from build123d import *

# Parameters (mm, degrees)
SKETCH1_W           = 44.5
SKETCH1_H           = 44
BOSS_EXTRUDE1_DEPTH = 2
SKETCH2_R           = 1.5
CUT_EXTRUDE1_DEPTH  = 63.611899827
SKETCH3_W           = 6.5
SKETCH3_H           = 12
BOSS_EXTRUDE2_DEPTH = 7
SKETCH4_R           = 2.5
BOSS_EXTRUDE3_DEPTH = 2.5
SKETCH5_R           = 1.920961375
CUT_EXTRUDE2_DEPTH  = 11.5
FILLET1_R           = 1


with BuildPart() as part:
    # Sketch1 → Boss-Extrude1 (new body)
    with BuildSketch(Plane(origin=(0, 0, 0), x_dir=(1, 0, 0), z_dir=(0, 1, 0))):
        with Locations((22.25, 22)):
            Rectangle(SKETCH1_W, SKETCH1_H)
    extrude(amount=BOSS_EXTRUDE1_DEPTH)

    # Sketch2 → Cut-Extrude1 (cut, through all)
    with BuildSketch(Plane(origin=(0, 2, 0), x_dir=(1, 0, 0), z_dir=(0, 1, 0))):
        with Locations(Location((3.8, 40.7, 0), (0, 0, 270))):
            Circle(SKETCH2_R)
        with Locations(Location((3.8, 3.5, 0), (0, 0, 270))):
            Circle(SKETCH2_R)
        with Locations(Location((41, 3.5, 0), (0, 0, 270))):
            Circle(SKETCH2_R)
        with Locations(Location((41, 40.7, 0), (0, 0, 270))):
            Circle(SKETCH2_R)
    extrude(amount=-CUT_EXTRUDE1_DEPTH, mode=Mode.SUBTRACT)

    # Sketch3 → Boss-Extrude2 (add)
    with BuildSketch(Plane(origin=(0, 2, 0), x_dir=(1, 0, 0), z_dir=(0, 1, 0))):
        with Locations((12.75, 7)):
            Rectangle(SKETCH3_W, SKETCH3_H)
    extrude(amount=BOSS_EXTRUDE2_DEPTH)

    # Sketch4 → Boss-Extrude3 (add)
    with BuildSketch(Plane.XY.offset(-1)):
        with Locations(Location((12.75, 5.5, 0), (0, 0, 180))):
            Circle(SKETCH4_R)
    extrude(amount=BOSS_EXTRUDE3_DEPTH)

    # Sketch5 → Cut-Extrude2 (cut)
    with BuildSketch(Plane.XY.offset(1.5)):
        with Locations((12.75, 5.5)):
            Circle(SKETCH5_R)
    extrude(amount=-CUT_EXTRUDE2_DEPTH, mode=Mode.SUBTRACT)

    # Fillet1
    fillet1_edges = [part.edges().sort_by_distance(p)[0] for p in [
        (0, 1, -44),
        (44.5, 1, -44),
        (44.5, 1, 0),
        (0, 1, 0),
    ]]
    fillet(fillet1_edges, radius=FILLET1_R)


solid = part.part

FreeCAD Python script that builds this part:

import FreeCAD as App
import Part
import Sketcher
Q = App.Units.Quantity


def edges_at(feature, points):
    """Names of the edges that pass closest to the given points."""
    edges = feature.Shape.Edges
    near = lambda p: min(range(len(edges)), key=lambda i: edges[i].distToShape(Part.Vertex(*p))[0])
    return sorted({f"Edge{near(p) + 1}" for p in points})


def add_polygon(sketch, points):
    """Adds a closed chain of lines whose ends are joined by coincident constraints."""
    first, n = sketch.GeometryCount, len(points)
    for a, b in zip(points, points[1:] + points[:1]):
        sketch.addGeometry(Part.LineSegment(App.Vector(*a, 0), App.Vector(*b, 0)), False)
    for i in range(n):
        sketch.addConstraint(Sketcher.Constraint("Coincident", first + i, 2, first + (i + 1) % n, 1))

doc = App.newDocument("Part")
params = doc.addObject("Spreadsheet::Sheet", "Params")
for row, (alias, value) in enumerate([
    ("sketch1_height", "44 mm"),
    ("sketch1_width", "44.5 mm"),
    ("pad1_length", "2 mm"),
    ("sketch2_diameter", "3 mm"),
    ("sketch3_height", "12 mm"),
    ("sketch3_width", "6.5 mm"),
    ("pad2_length", "7 mm"),
    ("sketch4_diameter", "5 mm"),
    ("pad3_length", "2.5 mm"),
    ("pocket2_length", "11.5 mm"),
    ("fillet_radius", "1 mm"),
], start=1):
    params.set(f"A{row}", alias)
    params.set(f"B{row}", "=" + value)
    params.setAlias(f"B{row}", alias)

body = doc.addObject("PartDesign::Body", "Body")

sketch1 = body.newObject("Sketcher::SketchObject", "Sketch")
sketch1.AttachmentSupport = (doc.getObject("XZ_Plane"), [""])
sketch1.MapMode = "FlatFace"
add_polygon(sketch1, [(0, -44), (0, 0), (44.5, 0), (44.5, -44)])
sketch1.addConstraint([
    Sketcher.Constraint("Vertical", 0),
    Sketcher.Constraint("Horizontal", 1),
    Sketcher.Constraint("Vertical", 2),
    Sketcher.Constraint("Horizontal", 3),
    Sketcher.Constraint("Coincident", 0, 2, -1, 1),
    Sketcher.Constraint("DistanceY", 0, 1, 0, 2, Q("44 mm")),
    Sketcher.Constraint("DistanceX", 1, 1, 1, 2, Q("44.5 mm")),
])
sketch1.setExpression("Constraints[9]", "Params.sketch1_height")
sketch1.setExpression("Constraints[10]", "Params.sketch1_width")
pad1 = body.newObject("PartDesign::Pad", "Pad")
pad1.Profile = sketch1
pad1.setExpression("Length", "Params.pad1_length")
pad1.Reversed = True

sketch2 = body.newObject("Sketcher::SketchObject", "Sketch001")
sketch2.AttachmentSupport = (doc.getObject("XZ_Plane"), [""])
sketch2.MapMode = "FlatFace"
sketch2.AttachmentOffset = App.Placement(App.Vector(0, 0, -2), App.Rotation())
sketch2.addGeometry([
    Part.Circle(App.Vector(3.8, -40.7, 0), App.Vector(0, 0, 1), 1.5),
    Part.Circle(App.Vector(3.8, -3.5, 0), App.Vector(0, 0, 1), 1.5),
    Part.Circle(App.Vector(41, -3.5, 0), App.Vector(0, 0, 1), 1.5),
    Part.Circle(App.Vector(41, -40.7, 0), App.Vector(0, 0, 1), 1.5),
], False)
sketch2.addConstraint([
    Sketcher.Constraint("Equal", 0, 1),
    Sketcher.Constraint("Equal", 1, 2),
    Sketcher.Constraint("Equal", 2, 3),
    Sketcher.Constraint("Horizontal", 1, 3, 2, 3),
    Sketcher.Constraint("Horizontal", 0, 3, 3, 3),
    Sketcher.Constraint("Vertical", 0, 3, 1, 3),
    Sketcher.Constraint("Vertical", 2, 3, 3, 3),
    Sketcher.Constraint("Diameter", 0, Q("3 mm")),
    Sketcher.Constraint("DistanceX", -1, 1, 2, 3, Q("41 mm")),
    Sketcher.Constraint("DistanceX", -1, 1, 0, 3, Q("3.8 mm")),
    Sketcher.Constraint("DistanceY", 0, 3, -1, 1, Q("40.7 mm")),
    Sketcher.Constraint("DistanceY", 1, 3, -1, 1, Q("3.5 mm")),
])
sketch2.setExpression("Constraints[7]", "Params.sketch2_diameter")
pocket1 = body.newObject("PartDesign::Pocket", "Pocket")
pocket1.Profile = sketch2
pocket1.Type = "ThroughAll"
pocket1.Reversed = True

sketch3 = body.newObject("Sketcher::SketchObject", "Sketch002")
sketch3.AttachmentSupport = (doc.getObject("XZ_Plane"), [""])
sketch3.MapMode = "FlatFace"
sketch3.AttachmentOffset = App.Placement(App.Vector(0, 0, -2), App.Rotation())
add_polygon(sketch3, [(9.5, -13), (9.5, -1), (16, -1), (16, -13)])
sketch3.addConstraint([
    Sketcher.Constraint("Vertical", 0),
    Sketcher.Constraint("Horizontal", 1),
    Sketcher.Constraint("Vertical", 2),
    Sketcher.Constraint("Horizontal", 3),
    Sketcher.Constraint("DistanceY", 0, 1, 0, 2, Q("12 mm")),
    Sketcher.Constraint("DistanceX", 1, 1, 1, 2, Q("6.5 mm")),
    Sketcher.Constraint("DistanceY", 0, 2, -1, 1, Q("1 mm")),
    Sketcher.Constraint("DistanceX", -1, 1, 1, 2, Q("16 mm")),
])
sketch3.setExpression("Constraints[8]", "Params.sketch3_height")
sketch3.setExpression("Constraints[9]", "Params.sketch3_width")
pad2 = body.newObject("PartDesign::Pad", "Pad001")
pad2.Profile = sketch3
pad2.setExpression("Length", "Params.pad2_length")
pad2.Reversed = True

sketch4 = body.newObject("Sketcher::SketchObject", "Sketch003")
sketch4.AttachmentSupport = (doc.getObject("XY_Plane"), [""])
sketch4.MapMode = "FlatFace"
sketch4.AttachmentOffset = App.Placement(App.Vector(0, 0, -1), App.Rotation())
sketch4.addGeometry(Part.Circle(App.Vector(12.75, 5.5, 0), App.Vector(0, 0, 1), 2.5), False)
sketch4.addConstraint([
    Sketcher.Constraint("Diameter", 0, Q("5 mm")),
    Sketcher.Constraint("DistanceY", -1, 1, 0, 3, Q("5.5 mm")),
    Sketcher.Constraint("DistanceX", -1, 1, 0, 3, Q("12.75 mm")),
])
sketch4.setExpression("Constraints[0]", "Params.sketch4_diameter")
pad3 = body.newObject("PartDesign::Pad", "Pad002")
pad3.Profile = sketch4
pad3.setExpression("Length", "Params.pad3_length")

sketch5 = body.newObject("Sketcher::SketchObject", "Sketch004")
sketch5.AttachmentSupport = (doc.getObject("XY_Plane"), [""])
sketch5.MapMode = "FlatFace"
sketch5.AttachmentOffset = App.Placement(App.Vector(0, 0, 1.5), App.Rotation())
sketch5.addGeometry(Part.Circle(App.Vector(12.75, 5.5, 0), App.Vector(0, 0, 1), 1.920961), False)
sketch5.addConstraint([
    Sketcher.Constraint("DistanceY", -1, 1, 0, 3, Q("5.5 mm")),
    Sketcher.Constraint("DistanceX", -1, 1, 0, 3, Q("12.75 mm")),
    Sketcher.Constraint("Diameter", 0, Q("3.841923 mm")),
])
pocket2 = body.newObject("PartDesign::Pocket", "Pocket001")
pocket2.Profile = sketch5
pocket2.setExpression("Length", "Params.pocket2_length")
doc.recompute()

fillet = body.newObject("PartDesign::Fillet", "Fillet")
fillet.Base = (pocket2, edges_at(pocket2, [
    (0, 1, -44),
    (44.5, 1, -44),
    (44.5, 1, 0),
    (0, 1, 0),
]))
fillet.setExpression("Radius", "Params.fillet_radius")

doc.recompute()
